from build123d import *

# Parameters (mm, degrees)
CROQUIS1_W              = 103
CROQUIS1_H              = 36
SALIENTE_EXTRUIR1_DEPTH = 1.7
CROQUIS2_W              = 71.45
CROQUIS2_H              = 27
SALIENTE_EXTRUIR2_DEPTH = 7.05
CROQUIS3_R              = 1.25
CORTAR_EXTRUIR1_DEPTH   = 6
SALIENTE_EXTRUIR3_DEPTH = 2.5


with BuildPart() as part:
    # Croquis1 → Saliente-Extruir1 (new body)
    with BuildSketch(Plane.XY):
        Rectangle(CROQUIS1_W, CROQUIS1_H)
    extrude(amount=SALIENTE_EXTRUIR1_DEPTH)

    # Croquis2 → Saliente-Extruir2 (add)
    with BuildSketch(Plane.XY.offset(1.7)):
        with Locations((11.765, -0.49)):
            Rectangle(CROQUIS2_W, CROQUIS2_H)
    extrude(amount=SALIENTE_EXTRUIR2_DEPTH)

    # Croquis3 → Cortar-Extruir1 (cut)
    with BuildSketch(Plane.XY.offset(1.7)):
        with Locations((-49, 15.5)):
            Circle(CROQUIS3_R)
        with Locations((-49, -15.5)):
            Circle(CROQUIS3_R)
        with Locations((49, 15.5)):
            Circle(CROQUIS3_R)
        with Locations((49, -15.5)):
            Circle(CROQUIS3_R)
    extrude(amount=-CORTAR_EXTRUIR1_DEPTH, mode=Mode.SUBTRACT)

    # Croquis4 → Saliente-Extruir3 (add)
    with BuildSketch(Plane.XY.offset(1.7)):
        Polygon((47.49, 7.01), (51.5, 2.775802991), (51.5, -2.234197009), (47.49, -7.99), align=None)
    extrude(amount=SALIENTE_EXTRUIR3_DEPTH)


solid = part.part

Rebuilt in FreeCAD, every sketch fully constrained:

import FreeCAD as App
import Part
import Sketcher
from FreeCAD import Vector


def add_polygon(sketch, points):
    """Adds a closed chain of lines whose ends are joined by coincident constraints."""
    first, n = sketch.GeometryCount, len(points)
    for a, b in zip(points, points[1:] + points[:1]):
        sketch.addGeometry(Part.LineSegment(App.Vector(*a, 0), App.Vector(*b, 0)), False)
    for i in range(n):
        sketch.addConstraint(Sketcher.Constraint("Coincident", first + i, 2, first + (i + 1) % n, 1))

doc = App.newDocument("Part")
body = doc.addObject("PartDesign::Body", "Body")

# Sketch on XY plane
sketch1 = doc.addObject("Sketcher::SketchObject", "Sketch")
body.addObject(sketch1)
sketch1.AttachmentSupport = (doc.XY_Plane, [""])
sketch1.MapMode = "FlatFace"
add_polygon(sketch1, [(-52, 18), (-52, -18), (52, -18), (52, 18)])  # lines 0-3
sketch1.addConstraint([
    Sketcher.Constraint("Vertical", 0),
    Sketcher.Constraint("Horizontal", 1),
    Sketcher.Constraint("Vertical", 2),
    Sketcher.Constraint("Horizontal", 3),
    Sketcher.Constraint("Symmetric", 0, 2, 2, 2, -1, 1),
    Sketcher.Constraint("DistanceX", 1, 1, 1, 2, 103.0),
    Sketcher.Constraint("DistanceY", 0, 2, 0, 1, 36.0),
])
pad1 = doc.addObject("PartDesign::Pad", "Pad")
body.addObject(pad1)
pad1.Profile = sketch1
pad1.Length = 1.7

# Sketch on XY plane
sketch2 = doc.addObject("Sketcher::SketchObject", "Sketch001")
body.addObject(sketch2)
sketch2.AttachmentSupport = (doc.XY_Plane, [""])
sketch2.MapMode = "FlatFace"
sketch2.AttachmentOffset = App.Placement(Vector(0, 0, 1.7), App.Rotation())
add_polygon(sketch2, [(-24, 13), (-24, -14), (47, -14), (47, 13)])  # lines 0-3
sketch2.addConstraint([
    Sketcher.Constraint("Vertical", 0),
    Sketcher.Constraint("Horizontal", 1),
    Sketcher.Constraint("Vertical", 2),
    Sketcher.Constraint("Horizontal", 3),
    Sketcher.Constraint("DistanceY", 0, 2, 0, 1, 27.0),
    Sketcher.Constraint("DistanceX", 1, 1, 1, 2, 71.45),
    Sketcher.Constraint("DistanceX", 0, 2, -1, 1, 23.96),
    Sketcher.Constraint("DistanceY", 0, 2, -1, 1, 13.99),
])
pad2 = doc.addObject("PartDesign::Pad", "Pad001")
body.addObject(pad2)
pad2.Profile = sketch2
pad2.Length = 7.05

# Sketch on XY plane
sketch3 = doc.addObject("Sketcher::SketchObject", "Sketch002")
body.addObject(sketch3)
sketch3.AttachmentSupport = (doc.XY_Plane, [""])
sketch3.MapMode = "FlatFace"
sketch3.AttachmentOffset = App.Placement(Vector(0, 0, 1.7), App.Rotation())
sketch3.addGeometry([
    Part.Circle(Vector(-49, 15.5, 0), Vector(0, 0, 1), 1.2),
    Part.Circle(Vector(-49, -15.5, 0), Vector(0, 0, 1), 1.2),
    Part.Circle(Vector(49, 15.5, 0), Vector(0, 0, 1), 1.2),
    Part.Circle(Vector(49, -15.5, 0), Vector(0, 0, 1), 1.2),
], False)
sketch3.addConstraint([
    Sketcher.Constraint("Equal", 0, 1),
    Sketcher.Constraint("Equal", 1, 2),
    Sketcher.Constraint("Equal", 2, 3),
    Sketcher.Constraint("Symmetric", 1, 3, 2, 3, -1, 1),
    Sketcher.Constraint("Symmetric", 0, 3, 3, 3, -1, 1),
    Sketcher.Constraint("Symmetric", 0, 3, 2, 3, -2),
    Sketcher.Constraint("Diameter", 0, 2.5),
    Sketcher.Constraint("DistanceX", 0, 3, -1, 1, 49.0),
    Sketcher.Constraint("DistanceY", 1, 3, 0, 3, 31.0),
])
pocket1 = doc.addObject("PartDesign::Pocket", "Pocket")
body.addObject(pocket1)
pocket1.Profile = sketch3
pocket1.Length = 6

# Sketch on XY plane
sketch4 = doc.addObject("Sketcher::SketchObject", "Sketch003")
body.addObject(sketch4)
sketch4.AttachmentSupport = (doc.XY_Plane, [""])
sketch4.MapMode = "FlatFace"
sketch4.AttachmentOffset = App.Placement(Vector(0, 0, 1.7), App.Rotation())
add_polygon(sketch4, [(52, 3), (47, 7), (47, -8), (52, -2)])  # lines 0-3
sketch4.addConstraint([
    Sketcher.Constraint("Vertical", 1),
    Sketcher.Constraint("Vertical", 3),
    Sketcher.Constraint("DistanceY", 1, 2, 1, 1, 15.0),
    Sketcher.Constraint("DistanceY", 3, 1, 3, 2, 5.01),
    Sketcher.Constraint("DistanceX", -1, 1, 2, 2, 51.5),
    Sketcher.Constraint("DistanceX", -1, 1, 0, 2, 47.49),
    Sketcher.Constraint("DistanceY", -1, 1, 0, 2, 7.01),
    Sketcher.Constraint("Distance", 2, 7.014939),
])
pad3 = doc.addObject("PartDesign::Pad", "Pad002")
body.addObject(pad3)
pad3.Profile = sketch4
pad3.Length = 2.5

doc.recompute()
